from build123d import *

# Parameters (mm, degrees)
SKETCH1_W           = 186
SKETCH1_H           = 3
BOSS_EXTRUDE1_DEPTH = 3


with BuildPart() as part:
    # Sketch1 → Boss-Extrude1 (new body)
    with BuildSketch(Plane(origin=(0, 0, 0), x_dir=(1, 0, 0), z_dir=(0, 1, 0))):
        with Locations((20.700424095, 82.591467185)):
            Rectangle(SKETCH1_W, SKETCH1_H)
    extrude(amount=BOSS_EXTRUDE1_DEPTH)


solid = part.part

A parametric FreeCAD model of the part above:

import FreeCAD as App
import Part
import Sketcher
from FreeCAD import Vector

doc = App.newDocument("Part")
params = doc.addObject("Spreadsheet::Sheet", "Params")
for row, (alias, value) in enumerate([
    ("sketch1_width", "186 mm"),
    ("sketch1_height", "3 mm"),
    ("pad1_length", "3 mm"),
], start=1):
    params.set(f"A{row}", alias)
    params.set(f"B{row}", "=" + value)
    params.setAlias(f"B{row}", alias)

body = doc.addObject("PartDesign::Body", "Body")

# Sketch on XZ plane
sketch1 = body.newObject("Sketcher::SketchObject", "Sketch")
sketch1.AttachmentSupport = (doc.getObject("XZ_Plane"), [""])
sketch1.MapMode = "FlatFace"
sketch1.addGeometry([
    Part.LineSegment(Vector(-72.3, -84.1, 0), Vector(-72.3, -81.1, 0)),
    Part.LineSegment(Vector(-72.3, -81.1, 0), Vector(113.7, -81.1, 0)),
    Part.LineSegment(Vector(113.7, -81.1, 0), Vector(113.7, -84.1, 0)),
    Part.LineSegment(Vector(113.7, -84.1, 0), Vector(-72.3, -84.1, 0)),
], False)
sketch1.addConstraint([
    Sketcher.Constraint("Coincident", 0, 2, 1, 1),
    Sketcher.Constraint("Coincident", 1, 2, 2, 1),
    Sketcher.Constraint("Coincident", 2, 2, 3, 1),
    Sketcher.Constraint("Coincident", 3, 2, 0, 1),
    Sketcher.Constraint("Vertical", 0),
    Sketcher.Constraint("Horizontal", 1),
    Sketcher.Constraint("Vertical", 2),
    Sketcher.Constraint("Horizontal", 3),
    Sketcher.Constraint("DistanceX", 1, 1, 1, 2, 186.0),
    Sketcher.Constraint("DistanceY", 0, 1, 0, 2, 3.0),
    Sketcher.Constraint("DistanceX", 0, 2, -1, 1, 72.299576),
    Sketcher.Constraint("DistanceY", 0, 2, -1, 1, 81.091467),
])
sketch1.setExpression("Constraints[8]", "Params.sketch1_width")
sketch1.setExpression("Constraints[9]", "Params.sketch1_height")
pad1 = body.newObject("PartDesign::Pad", "Pad")
pad1.Profile = sketch1
pad1.setExpression("Length", "Params.pad1_length")
pad1.Reversed = True

doc.recompute()
